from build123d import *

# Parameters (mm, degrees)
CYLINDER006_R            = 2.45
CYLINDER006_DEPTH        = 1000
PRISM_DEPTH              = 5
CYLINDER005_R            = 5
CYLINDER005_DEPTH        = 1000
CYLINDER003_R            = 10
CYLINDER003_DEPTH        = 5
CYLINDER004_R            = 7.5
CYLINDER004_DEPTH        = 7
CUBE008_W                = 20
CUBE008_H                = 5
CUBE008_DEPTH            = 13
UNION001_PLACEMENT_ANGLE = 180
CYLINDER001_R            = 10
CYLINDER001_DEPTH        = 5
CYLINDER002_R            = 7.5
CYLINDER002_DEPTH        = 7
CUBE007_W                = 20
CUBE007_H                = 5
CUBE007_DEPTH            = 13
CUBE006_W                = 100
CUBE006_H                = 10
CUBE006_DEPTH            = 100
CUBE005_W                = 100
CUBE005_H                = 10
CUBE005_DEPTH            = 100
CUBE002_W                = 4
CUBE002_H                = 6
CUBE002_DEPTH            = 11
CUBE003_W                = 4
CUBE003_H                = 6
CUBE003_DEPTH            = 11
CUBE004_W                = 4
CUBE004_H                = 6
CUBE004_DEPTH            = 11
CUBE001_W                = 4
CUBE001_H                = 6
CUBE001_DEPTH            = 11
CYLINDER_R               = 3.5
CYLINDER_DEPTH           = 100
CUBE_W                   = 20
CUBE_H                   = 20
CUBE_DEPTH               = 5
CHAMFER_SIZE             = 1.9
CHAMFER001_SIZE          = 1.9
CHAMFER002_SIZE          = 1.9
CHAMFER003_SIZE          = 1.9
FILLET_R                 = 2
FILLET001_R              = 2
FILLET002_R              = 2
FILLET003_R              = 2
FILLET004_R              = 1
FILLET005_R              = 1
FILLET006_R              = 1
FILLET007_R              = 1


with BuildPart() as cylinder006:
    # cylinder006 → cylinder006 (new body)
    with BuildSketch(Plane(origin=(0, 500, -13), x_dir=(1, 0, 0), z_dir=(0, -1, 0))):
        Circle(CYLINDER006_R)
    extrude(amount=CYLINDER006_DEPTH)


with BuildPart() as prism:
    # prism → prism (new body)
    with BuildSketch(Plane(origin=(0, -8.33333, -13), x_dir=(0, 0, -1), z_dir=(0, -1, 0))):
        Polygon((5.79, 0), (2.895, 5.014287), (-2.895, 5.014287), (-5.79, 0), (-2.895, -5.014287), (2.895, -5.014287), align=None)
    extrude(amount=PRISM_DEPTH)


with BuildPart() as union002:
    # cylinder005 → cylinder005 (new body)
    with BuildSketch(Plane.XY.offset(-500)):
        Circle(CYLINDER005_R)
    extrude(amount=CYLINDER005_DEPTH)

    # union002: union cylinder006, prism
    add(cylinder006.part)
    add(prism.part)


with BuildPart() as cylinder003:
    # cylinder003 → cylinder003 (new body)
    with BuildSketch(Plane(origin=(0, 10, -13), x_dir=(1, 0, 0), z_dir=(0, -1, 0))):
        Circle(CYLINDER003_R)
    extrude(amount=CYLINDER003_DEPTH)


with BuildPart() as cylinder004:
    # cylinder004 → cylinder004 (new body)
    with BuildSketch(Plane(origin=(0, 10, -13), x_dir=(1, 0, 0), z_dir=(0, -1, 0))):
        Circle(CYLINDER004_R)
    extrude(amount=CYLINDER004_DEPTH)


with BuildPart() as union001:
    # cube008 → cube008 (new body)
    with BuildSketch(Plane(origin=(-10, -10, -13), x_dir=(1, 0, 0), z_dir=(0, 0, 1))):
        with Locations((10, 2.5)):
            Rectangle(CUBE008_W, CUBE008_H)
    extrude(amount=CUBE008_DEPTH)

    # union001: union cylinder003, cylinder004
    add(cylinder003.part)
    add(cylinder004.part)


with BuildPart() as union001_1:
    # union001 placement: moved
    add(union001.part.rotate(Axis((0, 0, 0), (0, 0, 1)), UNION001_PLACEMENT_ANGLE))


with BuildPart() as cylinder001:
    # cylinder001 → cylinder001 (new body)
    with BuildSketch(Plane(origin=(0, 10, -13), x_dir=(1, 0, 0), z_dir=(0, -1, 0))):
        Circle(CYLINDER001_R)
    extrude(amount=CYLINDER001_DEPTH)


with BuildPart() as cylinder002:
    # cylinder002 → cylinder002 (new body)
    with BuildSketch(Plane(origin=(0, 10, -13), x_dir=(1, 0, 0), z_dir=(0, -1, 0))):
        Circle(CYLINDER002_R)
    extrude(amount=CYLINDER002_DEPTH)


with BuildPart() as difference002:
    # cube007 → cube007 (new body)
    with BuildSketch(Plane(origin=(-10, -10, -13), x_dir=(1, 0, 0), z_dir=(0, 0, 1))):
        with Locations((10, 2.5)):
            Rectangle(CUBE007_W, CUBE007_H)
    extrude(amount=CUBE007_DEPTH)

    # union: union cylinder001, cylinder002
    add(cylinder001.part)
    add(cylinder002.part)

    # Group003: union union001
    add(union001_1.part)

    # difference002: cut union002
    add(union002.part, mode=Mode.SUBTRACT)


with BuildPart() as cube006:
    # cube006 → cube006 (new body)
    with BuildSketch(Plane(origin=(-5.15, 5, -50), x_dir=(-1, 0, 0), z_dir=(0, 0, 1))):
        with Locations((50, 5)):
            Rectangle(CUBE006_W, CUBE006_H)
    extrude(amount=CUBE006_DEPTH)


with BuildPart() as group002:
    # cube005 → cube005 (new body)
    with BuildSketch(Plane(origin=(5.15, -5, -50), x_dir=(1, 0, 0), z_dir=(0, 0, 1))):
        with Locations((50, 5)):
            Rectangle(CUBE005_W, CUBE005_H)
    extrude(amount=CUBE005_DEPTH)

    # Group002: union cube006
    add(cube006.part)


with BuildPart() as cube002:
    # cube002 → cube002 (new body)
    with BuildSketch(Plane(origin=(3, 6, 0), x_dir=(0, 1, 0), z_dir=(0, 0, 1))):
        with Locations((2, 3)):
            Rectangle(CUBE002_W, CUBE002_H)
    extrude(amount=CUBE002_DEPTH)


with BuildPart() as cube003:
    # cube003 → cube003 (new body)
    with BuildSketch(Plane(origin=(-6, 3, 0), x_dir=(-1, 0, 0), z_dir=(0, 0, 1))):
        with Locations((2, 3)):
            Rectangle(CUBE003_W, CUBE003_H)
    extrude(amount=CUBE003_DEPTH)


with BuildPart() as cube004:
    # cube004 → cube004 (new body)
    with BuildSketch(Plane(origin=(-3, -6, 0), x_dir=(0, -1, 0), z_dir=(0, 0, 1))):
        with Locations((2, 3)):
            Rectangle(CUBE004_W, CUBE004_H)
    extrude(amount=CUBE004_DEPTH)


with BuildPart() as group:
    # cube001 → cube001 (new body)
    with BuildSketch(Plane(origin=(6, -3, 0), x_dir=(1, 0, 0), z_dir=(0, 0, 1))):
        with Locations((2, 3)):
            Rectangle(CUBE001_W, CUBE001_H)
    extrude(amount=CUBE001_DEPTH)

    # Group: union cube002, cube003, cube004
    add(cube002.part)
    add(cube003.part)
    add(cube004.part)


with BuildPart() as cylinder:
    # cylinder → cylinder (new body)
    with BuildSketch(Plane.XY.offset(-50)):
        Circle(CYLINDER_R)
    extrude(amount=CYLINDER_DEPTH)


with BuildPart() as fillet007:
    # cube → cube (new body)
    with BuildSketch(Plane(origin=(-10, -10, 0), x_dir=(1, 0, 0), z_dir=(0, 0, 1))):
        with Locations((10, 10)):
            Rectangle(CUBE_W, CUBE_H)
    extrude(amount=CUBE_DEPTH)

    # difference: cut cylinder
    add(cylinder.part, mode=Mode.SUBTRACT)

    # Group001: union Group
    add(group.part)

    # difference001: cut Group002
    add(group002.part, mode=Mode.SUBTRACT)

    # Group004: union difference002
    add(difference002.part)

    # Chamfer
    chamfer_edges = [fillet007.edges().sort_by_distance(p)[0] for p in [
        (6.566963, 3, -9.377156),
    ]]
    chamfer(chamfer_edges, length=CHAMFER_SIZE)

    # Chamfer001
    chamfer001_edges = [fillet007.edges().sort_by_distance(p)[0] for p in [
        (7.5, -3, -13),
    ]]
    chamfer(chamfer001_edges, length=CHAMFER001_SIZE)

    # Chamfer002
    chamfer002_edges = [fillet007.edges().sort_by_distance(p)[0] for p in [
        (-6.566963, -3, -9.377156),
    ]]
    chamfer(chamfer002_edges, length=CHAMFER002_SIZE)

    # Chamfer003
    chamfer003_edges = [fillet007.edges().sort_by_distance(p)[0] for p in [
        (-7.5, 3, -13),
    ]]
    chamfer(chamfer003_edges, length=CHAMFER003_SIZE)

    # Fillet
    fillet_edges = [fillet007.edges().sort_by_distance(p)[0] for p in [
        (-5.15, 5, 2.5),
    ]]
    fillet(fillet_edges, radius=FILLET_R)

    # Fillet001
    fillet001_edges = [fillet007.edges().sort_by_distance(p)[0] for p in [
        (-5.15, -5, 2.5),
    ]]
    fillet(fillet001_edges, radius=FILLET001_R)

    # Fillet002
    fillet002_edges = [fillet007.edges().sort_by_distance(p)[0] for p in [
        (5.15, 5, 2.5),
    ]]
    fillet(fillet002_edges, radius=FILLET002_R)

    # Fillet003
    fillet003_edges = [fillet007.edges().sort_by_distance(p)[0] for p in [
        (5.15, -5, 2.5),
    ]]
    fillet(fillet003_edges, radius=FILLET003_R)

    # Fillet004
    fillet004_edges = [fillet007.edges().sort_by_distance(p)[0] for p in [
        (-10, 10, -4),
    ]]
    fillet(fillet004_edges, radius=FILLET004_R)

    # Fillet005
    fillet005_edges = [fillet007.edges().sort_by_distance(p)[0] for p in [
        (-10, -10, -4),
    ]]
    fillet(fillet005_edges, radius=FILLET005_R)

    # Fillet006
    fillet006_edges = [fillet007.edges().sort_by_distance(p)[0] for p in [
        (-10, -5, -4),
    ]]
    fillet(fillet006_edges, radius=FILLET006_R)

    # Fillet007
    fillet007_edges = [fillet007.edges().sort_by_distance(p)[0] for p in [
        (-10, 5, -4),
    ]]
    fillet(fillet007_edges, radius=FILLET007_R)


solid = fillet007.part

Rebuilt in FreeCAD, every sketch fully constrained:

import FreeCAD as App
import Part
import Sketcher

V = App.Vector
Q = App.Units.Quantity


def edges_at(feature, points):
    """Names of the edges that pass closest to the given points."""
    edges = feature.Shape.Edges
    near = lambda p: min(range(len(edges)), key=lambda i: edges[i].distToShape(Part.Vertex(*p))[0])
    return sorted({f"Edge{near(p) + 1}" for p in points})

doc = App.newDocument("Part")
params = doc.addObject("Spreadsheet::Sheet", "Params")
for row, (alias, value) in enumerate([
    ("sketch1_diameter", "4.9 mm"),
    ("pad1_length", "1000 mm"),
    ("sketch2_height", "5.79 mm"),
    ("sketch2_length", "5.79 mm"),
    ("pad2_length", "5 mm"),
    ("sketch3_diameter", "10 mm"),
    ("pad3_length", "1000 mm"),
    ("sketch4_diameter", "20 mm"),
    ("pad4_length", "5 mm"),
    ("sketch5_diameter", "15 mm"),
    ("pad5_length", "7 mm"),
    ("sketch6_width", "20 mm"),
    ("sketch6_height", "5 mm"),
    ("pad6_length", "13 mm"),
    ("sketch7_diameter", "20 mm"),
    ("pad7_length", "5 mm"),
    ("sketch8_diameter", "15 mm"),
    ("pad8_length", "7 mm"),
    ("sketch9_width", "20 mm"),
    ("sketch9_height", "5 mm"),
    ("pad9_length", "13 mm"),
    ("sketch10_width", "100 mm"),
    ("sketch10_height", "10 mm"),
    ("pad10_length", "100 mm"),
    ("sketch11_width", "100 mm"),
    ("sketch11_height", "10 mm"),
    ("pad11_length", "100 mm"),
    ("sketch12_width", "6 mm"),
    ("sketch12_height", "4 mm"),
    ("pad12_length", "11 mm"),
    ("sketch13_width", "4 mm"),
    ("sketch13_height", "6 mm"),
    ("pad13_length", "11 mm"),
    ("sketch14_width", "6 mm"),
    ("sketch14_height", "4 mm"),
    ("pad14_length", "11 mm"),
    ("sketch15_width", "4 mm"),
    ("sketch15_height", "6 mm"),
    ("pad15_length", "11 mm"),
    ("sketch16_diameter", "7 mm"),
    ("pad16_length", "100 mm"),
    ("sketch17_width", "20 mm"),
    ("pad17_length", "5 mm"),
    ("chamfer_size", "1.9 mm"),
    ("chamfer2_size", "1.9 mm"),
    ("chamfer3_size", "1.9 mm"),
    ("chamfer4_size", "1.9 mm"),
    ("fillet_radius", "2 mm"),
    ("fillet2_radius", "2 mm"),
    ("fillet3_radius", "2 mm"),
    ("fillet4_radius", "2 mm"),
    ("fillet5_radius", "1 mm"),
    ("fillet6_radius", "1 mm"),
    ("fillet7_radius", "1 mm"),
    ("fillet8_radius", "1 mm"),
], start=1):
    params.set(f"A{row}", alias)
    params.set(f"B{row}", "=" + value)
    params.setAlias(f"B{row}", alias)

body = doc.addObject("PartDesign::Body", "Body")

# Sketch on XZ plane
sketch1 = doc.addObject("Sketcher::SketchObject", "Sketch")
body.addObject(sketch1)
sketch1.AttachmentSupport = (doc.XZ_Plane, [""])
sketch1.MapMode = "FlatFace"
sketch1.AttachmentOffset = App.Placement(V(0, 0, -500), App.Rotation())
sketch1.addGeometry(Part.Circle(V(0, -13, 0), V(0, 0, 1), 2.5), False)
sketch1.addConstraint(Sketcher.Constraint("PointOnObject", 0, 3, -2))
sketch1.addConstraint(Sketcher.Constraint("Diameter", 0, Q("4.9 mm")))
sketch1.addConstraint(Sketcher.Constraint("DistanceY", 0, 3, -1, 1, Q("13 mm")))
sketch1.setExpression("Constraints[1]", "Params.sketch1_diameter")
pad1 = doc.addObject("PartDesign::Pad", "Pad")
body.addObject(pad1)
pad1.Profile = sketch1
pad1.setExpression("Length", "Params.pad1_length")
body2 = doc.addObject("PartDesign::Body", "Body001")

# Sketch on XZ plane
sketch2 = doc.addObject("Sketcher::SketchObject", "Sketch001")
body2.addObject(sketch2)
sketch2.AttachmentSupport = (doc.getObject("XZ_Plane001"), [""])
sketch2.MapMode = "FlatFace"
sketch2.AttachmentOffset = App.Placement(V(0, 0, 8.33333), App.Rotation())
sketch2.addGeometry(Part.LineSegment(V(0, -19, 0), V(5, -16, 0)), False)
sketch2.addGeometry(Part.LineSegment(V(5, -16, 0), V(5, -10, 0)), False)
sketch2.addGeometry(Part.LineSegment(V(5, -10, 0), V(0, -7, 0)), False)
sketch2.addGeometry(Part.LineSegment(V(0, -7, 0), V(-5, -10, 0)), False)
sketch2.addGeometry(Part.LineSegment(V(-5, -10, 0), V(-5, -16, 0)), False)
sketch2.addGeometry(Part.LineSegment(V(-5, -16, 0), V(0, -19, 0)), False)
sketch2.addConstraint(Sketcher.Constraint("Coincident", 0, 2, 1, 1))
sketch2.addConstraint(Sketcher.Constraint("Coincident", 1, 2, 2, 1))
sketch2.addConstraint(Sketcher.Constraint("Coincident", 2, 2, 3, 1))
sketch2.addConstraint(Sketcher.Constraint("Coincident", 3, 2, 4, 1))
sketch2.addConstraint(Sketcher.Constraint("Coincident", 4, 2, 5, 1))
sketch2.addConstraint(Sketcher.Constraint("Coincident", 5, 2, 0, 1))
sketch2.addConstraint(Sketcher.Constraint("Vertical", 1))
sketch2.addConstraint(Sketcher.Constraint("Vertical", 4))
sketch2.addConstraint(Sketcher.Constraint("Symmetric", 1, 2, 3, 2, -2))
sketch2.addConstraint(Sketcher.Constraint("PointOnObject", 2, 2, -2))
sketch2.addConstraint(Sketcher.Constraint("PointOnObject", 5, 2, -2))
sketch2.addConstraint(Sketcher.Constraint("Parallel", 0, 3))
sketch2.addConstraint(Sketcher.Constraint("Parallel", 2, 5))
sketch2.addConstraint(Sketcher.Constraint("Angle", 0, Q("30 deg")))
sketch2.addConstraint(Sketcher.Constraint("DistanceY", 1, 1, 1, 2, Q("5.79 mm")))
sketch2.addConstraint(Sketcher.Constraint("Distance", 0, Q("5.79 mm")))
sketch2.addConstraint(Sketcher.Constraint("DistanceY", 2, 2, -1, 1, Q("7.21 mm")))
sketch2.setExpression("Constraints[14]", "Params.sketch2_height")
sketch2.setExpression("Constraints[15]", "Params.sketch2_length")
pad2 = doc.addObject("PartDesign::Pad", "Pad001")
body2.addObject(pad2)
pad2.Profile = sketch2
pad2.setExpression("Length", "Params.pad2_length")
body3 = doc.addObject("PartDesign::Body", "Body002")

# Sketch on XY plane
sketch3 = doc.addObject("Sketcher::SketchObject", "Sketch002")
body3.addObject(sketch3)
sketch3.AttachmentSupport = (doc.getObject("XY_Plane002"), [""])
sketch3.MapMode = "FlatFace"
sketch3.AttachmentOffset = App.Placement(V(0, 0, -500), App.Rotation())
sketch3.addGeometry(Part.Circle(V(0, 0, 0), V(0, 0, 1), 5), False)
sketch3.addConstraint(Sketcher.Constraint("Coincident", 0, 3, -1, 1))
sketch3.addConstraint(Sketcher.Constraint("Diameter", 0, Q("10 mm")))
sketch3.setExpression("Constraints[1]", "Params.sketch3_diameter")
pad3 = doc.addObject("PartDesign::Pad", "Pad002")
body3.addObject(pad3)
pad3.Profile = sketch3
pad3.setExpression("Length", "Params.pad3_length")
doc.recompute()

boolean = doc.addObject("PartDesign::Boolean", "Boolean")
body3.addObject(boolean)
boolean.Type = "Fuse"
boolean.addObjects([body])
doc.recompute()

boolean2 = doc.addObject("PartDesign::Boolean", "Boolean001")
body3.addObject(boolean2)
boolean2.Type = "Fuse"
boolean2.addObjects([body2])
body4 = doc.addObject("PartDesign::Body", "Body003")

# Sketch on XZ plane
sketch4 = doc.addObject("Sketcher::SketchObject", "Sketch003")
body4.addObject(sketch4)
sketch4.AttachmentSupport = (doc.getObject("XZ_Plane003"), [""])
sketch4.MapMode = "FlatFace"
sketch4.AttachmentOffset = App.Placement(V(0, 0, -10), App.Rotation())
sketch4.addGeometry(Part.Circle(V(0, -13, 0), V(0, 0, 1), 10), False)
sketch4.addConstraint(Sketcher.Constraint("PointOnObject", 0, 3, -2))
sketch4.addConstraint(Sketcher.Constraint("Diameter", 0, Q("20 mm")))
sketch4.addConstraint(Sketcher.Constraint("DistanceY", 0, 3, -1, 1, Q("13 mm")))
sketch4.setExpression("Constraints[1]", "Params.sketch4_diameter")
pad4 = doc.addObject("PartDesign::Pad", "Pad003")
body4.addObject(pad4)
pad4.Profile = sketch4
pad4.setExpression("Length", "Params.pad4_length")
body5 = doc.addObject("PartDesign::Body", "Body004")

# Sketch on XZ plane
sketch5 = doc.addObject("Sketcher::SketchObject", "Sketch004")
body5.addObject(sketch5)
sketch5.AttachmentSupport = (doc.getObject("XZ_Plane004"), [""])
sketch5.MapMode = "FlatFace"
sketch5.AttachmentOffset = App.Placement(V(0, 0, -10), App.Rotation())
sketch5.addGeometry(Part.Circle(V(0, -13, 0), V(0, 0, 1), 8), False)
sketch5.addConstraint(Sketcher.Constraint("PointOnObject", 0, 3, -2))
sketch5.addConstraint(Sketcher.Constraint("Diameter", 0, Q("15 mm")))
sketch5.addConstraint(Sketcher.Constraint("DistanceY", 0, 3, -1, 1, Q("13 mm")))
sketch5.setExpression("Constraints[1]", "Params.sketch5_diameter")
pad5 = doc.addObject("PartDesign::Pad", "Pad004")
body5.addObject(pad5)
pad5.Profile = sketch5
pad5.setExpression("Length", "Params.pad5_length")
body6 = doc.addObject("PartDesign::Body", "Body005")
body6.AllowCompound = True

# Sketch on XY plane
sketch6 = doc.addObject("Sketcher::SketchObject", "Sketch005")
body6.addObject(sketch6)
sketch6.AttachmentSupport = (doc.getObject("XY_Plane005"), [""])
sketch6.MapMode = "FlatFace"
sketch6.AttachmentOffset = App.Placement(V(0, 0, -13), App.Rotation())
sketch6.addGeometry(Part.LineSegment(V(-10, -5, 0), V(-10, -10, 0)), False)
sketch6.addGeometry(Part.LineSegment(V(-10, -10, 0), V(10, -10, 0)), False)
sketch6.addGeometry(Part.LineSegment(V(10, -10, 0), V(10, -5, 0)), False)
sketch6.addGeometry(Part.LineSegment(V(10, -5, 0), V(-10, -5, 0)), False)
sketch6.addConstraint(Sketcher.Constraint("Coincident", 0, 2, 1, 1))
sketch6.addConstraint(Sketcher.Constraint("Coincident", 1, 2, 2, 1))
sketch6.addConstraint(Sketcher.Constraint("Coincident", 2, 2, 3, 1))
sketch6.addConstraint(Sketcher.Constraint("Coincident", 3, 2, 0, 1))
sketch6.addConstraint(Sketcher.Constraint("Vertical", 0))
sketch6.addConstraint(Sketcher.Constraint("Horizontal", 1))
sketch6.addConstraint(Sketcher.Constraint("Vertical", 2))
sketch6.addConstraint(Sketcher.Constraint("Horizontal", 3))
sketch6.addConstraint(Sketcher.Constraint("DistanceX", 1, 1, 1, 2, Q("20 mm")))
sketch6.addConstraint(Sketcher.Constraint("DistanceY", 0, 2, 0, 1, Q("5 mm")))
sketch6.addConstraint(Sketcher.Constraint("DistanceX", 0, 2, -1, 1, Q("10 mm")))
sketch6.addConstraint(Sketcher.Constraint("DistanceY", 0, 2, -1, 1, Q("10 mm")))
sketch6.setExpression("Constraints[8]", "Params.sketch6_width")
sketch6.setExpression("Constraints[9]", "Params.sketch6_height")
pad6 = doc.addObject("PartDesign::Pad", "Pad005")
body6.addObject(pad6)
pad6.Profile = sketch6
pad6.setExpression("Length", "Params.pad6_length")
doc.recompute()

boolean3 = doc.addObject("PartDesign::Boolean", "Boolean002")
body6.addObject(boolean3)
boolean3.Type = "Fuse"
boolean3.addObjects([body4])
doc.recompute()

boolean4 = doc.addObject("PartDesign::Boolean", "Boolean003")
body6.addObject(boolean4)
boolean4.Type = "Fuse"
boolean4.addObjects([body5])
body7 = doc.addObject("PartDesign::Body", "Body006")
body7.AllowCompound = True
doc.recompute()

body6.Placement = App.Placement(V(0, 0, 0), App.Rotation(V(0, 0, 1), 180))
boolean5 = doc.addObject("PartDesign::Boolean", "Boolean004")
body7.addObject(boolean5)
boolean5.Type = "Fuse"
boolean5.addObjects([body6])
body8 = doc.addObject("PartDesign::Body", "Body007")

# Sketch on XZ plane
sketch7 = doc.addObject("Sketcher::SketchObject", "Sketch006")
body8.addObject(sketch7)
sketch7.AttachmentSupport = (doc.getObject("XZ_Plane007"), [""])
sketch7.MapMode = "FlatFace"
sketch7.AttachmentOffset = App.Placement(V(0, 0, -10), App.Rotation())
sketch7.addGeometry(Part.Circle(V(0, -13, 0), V(0, 0, 1), 10), False)
sketch7.addConstraint(Sketcher.Constraint("PointOnObject", 0, 3, -2))
sketch7.addConstraint(Sketcher.Constraint("Diameter", 0, Q("20 mm")))
sketch7.addConstraint(Sketcher.Constraint("DistanceY", 0, 3, -1, 1, Q("13 mm")))
sketch7.setExpression("Constraints[1]", "Params.sketch7_diameter")
pad7 = doc.addObject("PartDesign::Pad", "Pad006")
body8.addObject(pad7)
pad7.Profile = sketch7
pad7.setExpression("Length", "Params.pad7_length")
body9 = doc.addObject("PartDesign::Body", "Body008")

# Sketch on XZ plane
sketch8 = doc.addObject("Sketcher::SketchObject", "Sketch007")
body9.addObject(sketch8)
sketch8.AttachmentSupport = (doc.getObject("XZ_Plane008"), [""])
sketch8.MapMode = "FlatFace"
sketch8.AttachmentOffset = App.Placement(V(0, 0, -10), App.Rotation())
sketch8.addGeometry(Part.Circle(V(0, -13, 0), V(0, 0, 1), 8), False)
sketch8.addConstraint(Sketcher.Constraint("PointOnObject", 0, 3, -2))
sketch8.addConstraint(Sketcher.Constraint("Diameter", 0, Q("15 mm")))
sketch8.addConstraint(Sketcher.Constraint("DistanceY", 0, 3, -1, 1, Q("13 mm")))
sketch8.setExpression("Constraints[1]", "Params.sketch8_diameter")
pad8 = doc.addObject("PartDesign::Pad", "Pad007")
body9.addObject(pad8)
pad8.Profile = sketch8
pad8.setExpression("Length", "Params.pad8_length")
body10 = doc.addObject("PartDesign::Body", "Body009")
body10.AllowCompound = True

# Sketch on XY plane
sketch9 = doc.addObject("Sketcher::SketchObject", "Sketch008")
body10.addObject(sketch9)
sketch9.AttachmentSupport = (doc.getObject("XY_Plane009"), [""])
sketch9.MapMode = "FlatFace"
sketch9.AttachmentOffset = App.Placement(V(0, 0, -13), App.Rotation())
sketch9.addGeometry(Part.LineSegment(V(-10, -5, 0), V(-10, -10, 0)), False)
sketch9.addGeometry(Part.LineSegment(V(-10, -10, 0), V(10, -10, 0)), False)
sketch9.addGeometry(Part.LineSegment(V(10, -10, 0), V(10, -5, 0)), False)
sketch9.addGeometry(Part.LineSegment(V(10, -5, 0), V(-10, -5, 0)), False)
sketch9.addConstraint(Sketcher.Constraint("Coincident", 0, 2, 1, 1))
sketch9.addConstraint(Sketcher.Constraint("Coincident", 1, 2, 2, 1))
sketch9.addConstraint(Sketcher.Constraint("Coincident", 2, 2, 3, 1))
sketch9.addConstraint(Sketcher.Constraint("Coincident", 3, 2, 0, 1))
sketch9.addConstraint(Sketcher.Constraint("Vertical", 0))
sketch9.addConstraint(Sketcher.Constraint("Horizontal", 1))
sketch9.addConstraint(Sketcher.Constraint("Vertical", 2))
sketch9.addConstraint(Sketcher.Constraint("Horizontal", 3))
sketch9.addConstraint(Sketcher.Constraint("DistanceX", 1, 1, 1, 2, Q("20 mm")))
sketch9.addConstraint(Sketcher.Constraint("DistanceY", 0, 2, 0, 1, Q("5 mm")))
sketch9.addConstraint(Sketcher.Constraint("DistanceX", 0, 2, -1, 1, Q("10 mm")))
sketch9.addConstraint(Sketcher.Constraint("DistanceY", 0, 2, -1, 1, Q("10 mm")))
sketch9.setExpression("Constraints[8]", "Params.sketch9_width")
sketch9.setExpression("Constraints[9]", "Params.sketch9_height")
pad9 = doc.addObject("PartDesign::Pad", "Pad008")
body10.addObject(pad9)
pad9.Profile = sketch9
pad9.setExpression("Length", "Params.pad9_length")
doc.recompute()

boolean6 = doc.addObject("PartDesign::Boolean", "Boolean005")
body10.addObject(boolean6)
boolean6.Type = "Fuse"
boolean6.addObjects([body8])
doc.recompute()

boolean7 = doc.addObject("PartDesign::Boolean", "Boolean006")
body10.addObject(boolean7)
boolean7.Type = "Fuse"
boolean7.addObjects([body9])
doc.recompute()

boolean8 = doc.addObject("PartDesign::Boolean", "Boolean007")
body10.addObject(boolean8)
boolean8.Type = "Fuse"
boolean8.addObjects([body7])
doc.recompute()

boolean9 = doc.addObject("PartDesign::Boolean", "Boolean008")
body10.addObject(boolean9)
boolean9.Type = "Cut"
boolean9.addObjects([body3])
body11 = doc.addObject("PartDesign::Body", "Body010")

# Sketch on XY plane
sketch10 = doc.addObject("Sketcher::SketchObject", "Sketch009")
body11.addObject(sketch10)
sketch10.AttachmentSupport = (doc.getObject("XY_Plane010"), [""])
sketch10.MapMode = "FlatFace"
sketch10.AttachmentOffset = App.Placement(V(0, 0, -50), App.Rotation())
sketch10.addGeometry(Part.LineSegment(V(-5, -5, 0), V(-5, 5, 0)), False)
sketch10.addGeometry(Part.LineSegment(V(-5, 5, 0), V(-105, 5, 0)), False)
sketch10.addGeometry(Part.LineSegment(V(-105, 5, 0), V(-105, -5, 0)), False)
sketch10.addGeometry(Part.LineSegment(V(-105, -5, 0), V(-5, -5, 0)), False)
sketch10.addConstraint(Sketcher.Constraint("Coincident", 0, 2, 1, 1))
sketch10.addConstraint(Sketcher.Constraint("Coincident", 1, 2, 2, 1))
sketch10.addConstraint(Sketcher.Constraint("Coincident", 2, 2, 3, 1))
sketch10.addConstraint(Sketcher.Constraint("Coincident", 3, 2, 0, 1))
sketch10.addConstraint(Sketcher.Constraint("Vertical", 0))
sketch10.addConstraint(Sketcher.Constraint("Horizontal", 1))
sketch10.addConstraint(Sketcher.Constraint("Vertical", 2))
sketch10.addConstraint(Sketcher.Constraint("Horizontal", 3))
sketch10.addConstraint(Sketcher.Constraint("DistanceX", 1, 2, 1, 1, Q("100 mm")))
sketch10.addConstraint(Sketcher.Constraint("DistanceY", 0, 1, 0, 2, Q("10 mm")))
sketch10.addConstraint(Sketcher.Constraint("DistanceY", -1, 1, 0, 2, Q("5 mm")))
sketch10.addConstraint(Sketcher.Constraint("DistanceX", 0, 2, -1, 1, Q("5.15 mm")))
sketch10.setExpression("Constraints[8]", "Params.sketch10_width")
sketch10.setExpression("Constraints[9]", "Params.sketch10_height")
pad10 = doc.addObject("PartDesign::Pad", "Pad009")
body11.addObject(pad10)
pad10.Profile = sketch10
pad10.setExpression("Length", "Params.pad10_length")
body12 = doc.addObject("PartDesign::Body", "Body011")
body12.AllowCompound = True

# Sketch on XY plane
sketch11 = doc.addObject("Sketcher::SketchObject", "Sketch010")
body12.addObject(sketch11)
sketch11.AttachmentSupport = (doc.getObject("XY_Plane011"), [""])
sketch11.MapMode = "FlatFace"
sketch11.AttachmentOffset = App.Placement(V(0, 0, -50), App.Rotation())
sketch11.addGeometry(Part.LineSegment(V(5, 5, 0), V(5, -5, 0)), False)
sketch11.addGeometry(Part.LineSegment(V(5, -5, 0), V(105, -5, 0)), False)
sketch11.addGeometry(Part.LineSegment(V(105, -5, 0), V(105, 5, 0)), False)
sketch11.addGeometry(Part.LineSegment(V(105, 5, 0), V(5, 5, 0)), False)
sketch11.addConstraint(Sketcher.Constraint("Coincident", 0, 2, 1, 1))
sketch11.addConstraint(Sketcher.Constraint("Coincident", 1, 2, 2, 1))
sketch11.addConstraint(Sketcher.Constraint("Coincident", 2, 2, 3, 1))
sketch11.addConstraint(Sketcher.Constraint("Coincident", 3, 2, 0, 1))
sketch11.addConstraint(Sketcher.Constraint("Vertical", 0))
sketch11.addConstraint(Sketcher.Constraint("Horizontal", 1))
sketch11.addConstraint(Sketcher.Constraint("Vertical", 2))
sketch11.addConstraint(Sketcher.Constraint("Horizontal", 3))
sketch11.addConstraint(Sketcher.Constraint("DistanceX", 1, 1, 1, 2, Q("100 mm")))
sketch11.addConstraint(Sketcher.Constraint("DistanceY", 0, 2, 0, 1, Q("10 mm")))
sketch11.addConstraint(Sketcher.Constraint("DistanceY", 0, 2, -1, 1, Q("5 mm")))
sketch11.addConstraint(Sketcher.Constraint("DistanceX", -1, 1, 0, 2, Q("5.15 mm")))
sketch11.setExpression("Constraints[8]", "Params.sketch11_width")
sketch11.setExpression("Constraints[9]", "Params.sketch11_height")
pad11 = doc.addObject("PartDesign::Pad", "Pad010")
body12.addObject(pad11)
pad11.Profile = sketch11
pad11.setExpression("Length", "Params.pad11_length")
doc.recompute()

boolean10 = doc.addObject("PartDesign::Boolean", "Boolean009")
body12.addObject(boolean10)
boolean10.Type = "Fuse"
boolean10.addObjects([body11])
body13 = doc.addObject("PartDesign::Body", "Body012")

# Sketch on XY plane
sketch12 = doc.addObject("Sketcher::SketchObject", "Sketch011")
body13.addObject(sketch12)
sketch12.AttachmentSupport = (doc.getObject("XY_Plane012"), [""])
sketch12.MapMode = "FlatFace"
sketch12.addGeometry(Part.LineSegment(V(-3, 6, 0), V(3, 6, 0)), False)
sketch12.addGeometry(Part.LineSegment(V(3, 6, 0), V(3, 10, 0)), False)
sketch12.addGeometry(Part.LineSegment(V(3, 10, 0), V(-3, 10, 0)), False)
sketch12.addGeometry(Part.LineSegment(V(-3, 10, 0), V(-3, 6, 0)), False)
sketch12.addConstraint(Sketcher.Constraint("Coincident", 0, 2, 1, 1))
sketch12.addConstraint(Sketcher.Constraint("Coincident", 1, 2, 2, 1))
sketch12.addConstraint(Sketcher.Constraint("Coincident", 2, 2, 3, 1))
sketch12.addConstraint(Sketcher.Constraint("Coincident", 3, 2, 0, 1))
sketch12.addConstraint(Sketcher.Constraint("Horizontal", 0))
sketch12.addConstraint(Sketcher.Constraint("Vertical", 1))
sketch12.addConstraint(Sketcher.Constraint("Horizontal", 2))
sketch12.addConstraint(Sketcher.Constraint("Vertical", 3))
sketch12.addConstraint(Sketcher.Constraint("DistanceX", 0, 1, 0, 2, Q("6 mm")))
sketch12.addConstraint(Sketcher.Constraint("DistanceY", 1, 1, 1, 2, Q("4 mm")))
sketch12.addConstraint(Sketcher.Constraint("DistanceX", -1, 1, 0, 2, Q("3 mm")))
sketch12.addConstraint(Sketcher.Constraint("DistanceY", -1, 1, 0, 2, Q("6 mm")))
sketch12.setExpression("Constraints[8]", "Params.sketch12_width")
sketch12.setExpression("Constraints[9]", "Params.sketch12_height")
pad12 = doc.addObject("PartDesign::Pad", "Pad011")
body13.addObject(pad12)
pad12.Profile = sketch12
pad12.setExpression("Length", "Params.pad12_length")
body14 = doc.addObject("PartDesign::Body", "Body013")

# Sketch on XY plane
sketch13 = doc.addObject("Sketcher::SketchObject", "Sketch012")
body14.addObject(sketch13)
sketch13.AttachmentSupport = (doc.getObject("XY_Plane013"), [""])
sketch13.MapMode = "FlatFace"
sketch13.addGeometry(Part.LineSegment(V(-6, -3, 0), V(-6, 3, 0)), False)
sketch13.addGeometry(Part.LineSegment(V(-6, 3, 0), V(-10, 3, 0)), False)
sketch13.addGeometry(Part.LineSegment(V(-10, 3, 0), V(-10, -3, 0)), False)
sketch13.addGeometry(Part.LineSegment(V(-10, -3, 0), V(-6, -3, 0)), False)
sketch13.addConstraint(Sketcher.Constraint("Coincident", 0, 2, 1, 1))
sketch13.addConstraint(Sketcher.Constraint("Coincident", 1, 2, 2, 1))
sketch13.addConstraint(Sketcher.Constraint("Coincident", 2, 2, 3, 1))
sketch13.addConstraint(Sketcher.Constraint("Coincident", 3, 2, 0, 1))
sketch13.addConstraint(Sketcher.Constraint("Vertical", 0))
sketch13.addConstraint(Sketcher.Constraint("Horizontal", 1))
sketch13.addConstraint(Sketcher.Constraint("Vertical", 2))
sketch13.addConstraint(Sketcher.Constraint("Horizontal", 3))
sketch13.addConstraint(Sketcher.Constraint("DistanceX", 1, 2, 1, 1, Q("4 mm")))
sketch13.addConstraint(Sketcher.Constraint("DistanceY", 0, 1, 0, 2, Q("6 mm")))
sketch13.addConstraint(Sketcher.Constraint("DistanceX", 0, 2, -1, 1, Q("6 mm")))
sketch13.addConstraint(Sketcher.Constraint("DistanceY", -1, 1, 0, 2, Q("3 mm")))
sketch13.setExpression("Constraints[8]", "Params.sketch13_width")
sketch13.setExpression("Constraints[9]", "Params.sketch13_height")
pad13 = doc.addObject("PartDesign::Pad", "Pad012")
body14.addObject(pad13)
pad13.Profile = sketch13
pad13.setExpression("Length", "Params.pad13_length")
body15 = doc.addObject("PartDesign::Body", "Body014")

# Sketch on XY plane
sketch14 = doc.addObject("Sketcher::SketchObject", "Sketch013")
body15.addObject(sketch14)
sketch14.AttachmentSupport = (doc.getObject("XY_Plane014"), [""])
sketch14.MapMode = "FlatFace"
sketch14.addGeometry(Part.LineSegment(V(3, -6, 0), V(-3, -6, 0)), False)
sketch14.addGeometry(Part.LineSegment(V(-3, -6, 0), V(-3, -10, 0)), False)
sketch14.addGeometry(Part.LineSegment(V(-3, -10, 0), V(3, -10, 0)), False)
sketch14.addGeometry(Part.LineSegment(V(3, -10, 0), V(3, -6, 0)), False)
sketch14.addConstraint(Sketcher.Constraint("Coincident", 0, 2, 1, 1))
sketch14.addConstraint(Sketcher.Constraint("Coincident", 1, 2, 2, 1))
sketch14.addConstraint(Sketcher.Constraint("Coincident", 2, 2, 3, 1))
sketch14.addConstraint(Sketcher.Constraint("Coincident", 3, 2, 0, 1))
sketch14.addConstraint(Sketcher.Constraint("Horizontal", 0))
sketch14.addConstraint(Sketcher.Constraint("Vertical", 1))
sketch14.addConstraint(Sketcher.Constraint("Horizontal", 2))
sketch14.addConstraint(Sketcher.Constraint("Vertical", 3))
sketch14.addConstraint(Sketcher.Constraint("DistanceX", 0, 2, 0, 1, Q("6 mm")))
sketch14.addConstraint(Sketcher.Constraint("DistanceY", 1, 2, 1, 1, Q("4 mm")))
sketch14.addConstraint(Sketcher.Constraint("DistanceX", 0, 2, -1, 1, Q("3 mm")))
sketch14.addConstraint(Sketcher.Constraint("DistanceY", 0, 2, -1, 1, Q("6 mm")))
sketch14.setExpression("Constraints[8]", "Params.sketch14_width")
sketch14.setExpression("Constraints[9]", "Params.sketch14_height")
pad14 = doc.addObject("PartDesign::Pad", "Pad013")
body15.addObject(pad14)
pad14.Profile = sketch14
pad14.setExpression("Length", "Params.pad14_length")
body16 = doc.addObject("PartDesign::Body", "Body015")
body16.AllowCompound = True

# Sketch on XY plane
sketch15 = doc.addObject("Sketcher::SketchObject", "Sketch014")
body16.addObject(sketch15)
sketch15.AttachmentSupport = (doc.getObject("XY_Plane015"), [""])
sketch15.MapMode = "FlatFace"
sketch15.addGeometry(Part.LineSegment(V(6, 3, 0), V(6, -3, 0)), False)
sketch15.addGeometry(Part.LineSegment(V(6, -3, 0), V(10, -3, 0)), False)
sketch15.addGeometry(Part.LineSegment(V(10, -3, 0), V(10, 3, 0)), False)
sketch15.addGeometry(Part.LineSegment(V(10, 3, 0), V(6, 3, 0)), False)
sketch15.addConstraint(Sketcher.Constraint("Coincident", 0, 2, 1, 1))
sketch15.addConstraint(Sketcher.Constraint("Coincident", 1, 2, 2, 1))
sketch15.addConstraint(Sketcher.Constraint("Coincident", 2, 2, 3, 1))
sketch15.addConstraint(Sketcher.Constraint("Coincident", 3, 2, 0, 1))
sketch15.addConstraint(Sketcher.Constraint("Vertical", 0))
sketch15.addConstraint(Sketcher.Constraint("Horizontal", 1))
sketch15.addConstraint(Sketcher.Constraint("Vertical", 2))
sketch15.addConstraint(Sketcher.Constraint("Horizontal", 3))
sketch15.addConstraint(Sketcher.Constraint("DistanceX", 1, 1, 1, 2, Q("4 mm")))
sketch15.addConstraint(Sketcher.Constraint("DistanceY", 0, 2, 0, 1, Q("6 mm")))
sketch15.addConstraint(Sketcher.Constraint("DistanceX", -1, 1, 0, 2, Q("6 mm")))
sketch15.addConstraint(Sketcher.Constraint("DistanceY", 0, 2, -1, 1, Q("3 mm")))
sketch15.setExpression("Constraints[8]", "Params.sketch15_width")
sketch15.setExpression("Constraints[9]", "Params.sketch15_height")
pad15 = doc.addObject("PartDesign::Pad", "Pad014")
body16.addObject(pad15)
pad15.Profile = sketch15
pad15.setExpression("Length", "Params.pad15_length")
doc.recompute()

boolean11 = doc.addObject("PartDesign::Boolean", "Boolean010")
body16.addObject(boolean11)
boolean11.Type = "Fuse"
boolean11.addObjects([body13])
doc.recompute()

boolean12 = doc.addObject("PartDesign::Boolean", "Boolean011")
body16.addObject(boolean12)
boolean12.Type = "Fuse"
boolean12.addObjects([body14])
doc.recompute()

boolean13 = doc.addObject("PartDesign::Boolean", "Boolean012")
body16.addObject(boolean13)
boolean13.Type = "Fuse"
boolean13.addObjects([body15])
body17 = doc.addObject("PartDesign::Body", "Body016")

# Sketch on XY plane
sketch16 = doc.addObject("Sketcher::SketchObject", "Sketch015")
body17.addObject(sketch16)
sketch16.AttachmentSupport = (doc.getObject("XY_Plane016"), [""])
sketch16.MapMode = "FlatFace"
sketch16.AttachmentOffset = App.Placement(V(0, 0, -50), App.Rotation())
sketch16.addGeometry(Part.Circle(V(0, 0, 0), V(0, 0, 1), 3.5), False)
sketch16.addConstraint(Sketcher.Constraint("Coincident", 0, 3, -1, 1))
sketch16.addConstraint(Sketcher.Constraint("Diameter", 0, Q("7 mm")))
sketch16.setExpression("Constraints[1]", "Params.sketch16_diameter")
pad16 = doc.addObject("PartDesign::Pad", "Pad015")
body17.addObject(pad16)
pad16.Profile = sketch16
pad16.setExpression("Length", "Params.pad16_length")
body18 = doc.addObject("PartDesign::Body", "Body017")

# Sketch on XY plane
sketch17 = doc.addObject("Sketcher::SketchObject", "Sketch016")
body18.addObject(sketch17)
sketch17.AttachmentSupport = (doc.getObject("XY_Plane017"), [""])
sketch17.MapMode = "FlatFace"
sketch17.addGeometry(Part.LineSegment(V(-10, 10, 0), V(-10, -10, 0)), False)
sketch17.addGeometry(Part.LineSegment(V(-10, -10, 0), V(10, -10, 0)), False)
sketch17.addGeometry(Part.LineSegment(V(10, -10, 0), V(10, 10, 0)), False)
sketch17.addGeometry(Part.LineSegment(V(10, 10, 0), V(-10, 10, 0)), False)
sketch17.addConstraint(Sketcher.Constraint("Coincident", 0, 2, 1, 1))
sketch17.addConstraint(Sketcher.Constraint("Coincident", 1, 2, 2, 1))
sketch17.addConstraint(Sketcher.Constraint("Coincident", 2, 2, 3, 1))
sketch17.addConstraint(Sketcher.Constraint("Coincident", 3, 2, 0, 1))
sketch17.addConstraint(Sketcher.Constraint("Vertical", 0))
sketch17.addConstraint(Sketcher.Constraint("Horizontal", 1))
sketch17.addConstraint(Sketcher.Constraint("Vertical", 2))
sketch17.addConstraint(Sketcher.Constraint("Horizontal", 3))
sketch17.addConstraint(Sketcher.Constraint("Symmetric", 0, 2, 2, 2, -1, 1))
sketch17.addConstraint(Sketcher.Constraint("Equal", 3, 0))
sketch17.addConstraint(Sketcher.Constraint("DistanceX", 1, 1, 1, 2, Q("20 mm")))
sketch17.setExpression("Constraints[10]", "Params.sketch17_width")
pad17 = doc.addObject("PartDesign::Pad", "Pad016")
body18.addObject(pad17)
pad17.Profile = sketch17
pad17.setExpression("Length", "Params.pad17_length")
doc.recompute()

boolean14 = doc.addObject("PartDesign::Boolean", "Boolean013")
body18.addObject(boolean14)
boolean14.Type = "Cut"
boolean14.addObjects([body17])
doc.recompute()

boolean15 = doc.addObject("PartDesign::Boolean", "Boolean014")
body18.addObject(boolean15)
boolean15.Type = "Fuse"
boolean15.addObjects([body16])
doc.recompute()

boolean16 = doc.addObject("PartDesign::Boolean", "Boolean015")
body18.addObject(boolean16)
boolean16.Type = "Cut"
boolean16.addObjects([body12])
doc.recompute()

boolean17 = doc.addObject("PartDesign::Boolean", "Boolean016")
body18.addObject(boolean17)
boolean17.Type = "Fuse"
boolean17.addObjects([body10])
doc.recompute()

chamfer = doc.addObject("PartDesign::Chamfer", "Chamfer")
body18.addObject(chamfer)
chamfer.Base = (boolean17, edges_at(boolean17, [(7.5, 3, -13)]))
chamfer.setExpression("Size", "Params.chamfer_size")
doc.recompute()

chamfer2 = doc.addObject("PartDesign::Chamfer", "Chamfer001")
body18.addObject(chamfer2)
chamfer2.Base = (chamfer, edges_at(chamfer, [(7.5, -3, -13)]))
chamfer2.setExpression("Size", "Params.chamfer2_size")
doc.recompute()

chamfer3 = doc.addObject("PartDesign::Chamfer", "Chamfer002")
body18.addObject(chamfer3)
chamfer3.Base = (chamfer2, edges_at(chamfer2, [(-7.5, -3, -13)]))
chamfer3.setExpression("Size", "Params.chamfer3_size")
doc.recompute()

chamfer4 = doc.addObject("PartDesign::Chamfer", "Chamfer003")
body18.addObject(chamfer4)
chamfer4.Base = (chamfer3, edges_at(chamfer3, [(-7.5, 3, -13)]))
chamfer4.setExpression("Size", "Params.chamfer4_size")
doc.recompute()

fillet = doc.addObject("PartDesign::Fillet", "Fillet")
body18.addObject(fillet)
fillet.Base = (chamfer4, edges_at(chamfer4, [(-5.15, 5, 2.5)]))
fillet.setExpression("Radius", "Params.fillet_radius")
doc.recompute()

fillet2 = doc.addObject("PartDesign::Fillet", "Fillet001")
body18.addObject(fillet2)
fillet2.Base = (fillet, edges_at(fillet, [(-5.15, -5, 2.5)]))
fillet2.setExpression("Radius", "Params.fillet2_radius")
doc.recompute()

fillet3 = doc.addObject("PartDesign::Fillet", "Fillet002")
body18.addObject(fillet3)
fillet3.Base = (fillet2, edges_at(fillet2, [(5.15, 5, 2.5)]))
fillet3.setExpression("Radius", "Params.fillet3_radius")
doc.recompute()

fillet4 = doc.addObject("PartDesign::Fillet", "Fillet003")
body18.addObject(fillet4)
fillet4.Base = (fillet3, edges_at(fillet3, [(5.15, -5, 2.5)]))
fillet4.setExpression("Radius", "Params.fillet4_radius")
doc.recompute()

fillet5 = doc.addObject("PartDesign::Fillet", "Fillet004")
body18.addObject(fillet5)
fillet5.Base = (fillet4, edges_at(fillet4, [(-10, 10, -4)]))
fillet5.setExpression("Radius", "Params.fillet5_radius")
doc.recompute()

fillet6 = doc.addObject("PartDesign::Fillet", "Fillet005")
body18.addObject(fillet6)
fillet6.Base = (fillet5, edges_at(fillet5, [(-10, -10, -4)]))
fillet6.setExpression("Radius", "Params.fillet6_radius")
doc.recompute()

fillet7 = doc.addObject("PartDesign::Fillet", "Fillet006")
body18.addObject(fillet7)
fillet7.Base = (fillet6, edges_at(fillet6, [(-10, -5, -4)]))
fillet7.setExpression("Radius", "Params.fillet7_radius")
doc.recompute()

fillet8 = doc.addObject("PartDesign::Fillet", "Fillet007")
body18.addObject(fillet8)
fillet8.Base = (fillet7, edges_at(fillet7, [(-10, 5, -4)]))
fillet8.setExpression("Radius", "Params.fillet8_radius")

doc.recompute()
